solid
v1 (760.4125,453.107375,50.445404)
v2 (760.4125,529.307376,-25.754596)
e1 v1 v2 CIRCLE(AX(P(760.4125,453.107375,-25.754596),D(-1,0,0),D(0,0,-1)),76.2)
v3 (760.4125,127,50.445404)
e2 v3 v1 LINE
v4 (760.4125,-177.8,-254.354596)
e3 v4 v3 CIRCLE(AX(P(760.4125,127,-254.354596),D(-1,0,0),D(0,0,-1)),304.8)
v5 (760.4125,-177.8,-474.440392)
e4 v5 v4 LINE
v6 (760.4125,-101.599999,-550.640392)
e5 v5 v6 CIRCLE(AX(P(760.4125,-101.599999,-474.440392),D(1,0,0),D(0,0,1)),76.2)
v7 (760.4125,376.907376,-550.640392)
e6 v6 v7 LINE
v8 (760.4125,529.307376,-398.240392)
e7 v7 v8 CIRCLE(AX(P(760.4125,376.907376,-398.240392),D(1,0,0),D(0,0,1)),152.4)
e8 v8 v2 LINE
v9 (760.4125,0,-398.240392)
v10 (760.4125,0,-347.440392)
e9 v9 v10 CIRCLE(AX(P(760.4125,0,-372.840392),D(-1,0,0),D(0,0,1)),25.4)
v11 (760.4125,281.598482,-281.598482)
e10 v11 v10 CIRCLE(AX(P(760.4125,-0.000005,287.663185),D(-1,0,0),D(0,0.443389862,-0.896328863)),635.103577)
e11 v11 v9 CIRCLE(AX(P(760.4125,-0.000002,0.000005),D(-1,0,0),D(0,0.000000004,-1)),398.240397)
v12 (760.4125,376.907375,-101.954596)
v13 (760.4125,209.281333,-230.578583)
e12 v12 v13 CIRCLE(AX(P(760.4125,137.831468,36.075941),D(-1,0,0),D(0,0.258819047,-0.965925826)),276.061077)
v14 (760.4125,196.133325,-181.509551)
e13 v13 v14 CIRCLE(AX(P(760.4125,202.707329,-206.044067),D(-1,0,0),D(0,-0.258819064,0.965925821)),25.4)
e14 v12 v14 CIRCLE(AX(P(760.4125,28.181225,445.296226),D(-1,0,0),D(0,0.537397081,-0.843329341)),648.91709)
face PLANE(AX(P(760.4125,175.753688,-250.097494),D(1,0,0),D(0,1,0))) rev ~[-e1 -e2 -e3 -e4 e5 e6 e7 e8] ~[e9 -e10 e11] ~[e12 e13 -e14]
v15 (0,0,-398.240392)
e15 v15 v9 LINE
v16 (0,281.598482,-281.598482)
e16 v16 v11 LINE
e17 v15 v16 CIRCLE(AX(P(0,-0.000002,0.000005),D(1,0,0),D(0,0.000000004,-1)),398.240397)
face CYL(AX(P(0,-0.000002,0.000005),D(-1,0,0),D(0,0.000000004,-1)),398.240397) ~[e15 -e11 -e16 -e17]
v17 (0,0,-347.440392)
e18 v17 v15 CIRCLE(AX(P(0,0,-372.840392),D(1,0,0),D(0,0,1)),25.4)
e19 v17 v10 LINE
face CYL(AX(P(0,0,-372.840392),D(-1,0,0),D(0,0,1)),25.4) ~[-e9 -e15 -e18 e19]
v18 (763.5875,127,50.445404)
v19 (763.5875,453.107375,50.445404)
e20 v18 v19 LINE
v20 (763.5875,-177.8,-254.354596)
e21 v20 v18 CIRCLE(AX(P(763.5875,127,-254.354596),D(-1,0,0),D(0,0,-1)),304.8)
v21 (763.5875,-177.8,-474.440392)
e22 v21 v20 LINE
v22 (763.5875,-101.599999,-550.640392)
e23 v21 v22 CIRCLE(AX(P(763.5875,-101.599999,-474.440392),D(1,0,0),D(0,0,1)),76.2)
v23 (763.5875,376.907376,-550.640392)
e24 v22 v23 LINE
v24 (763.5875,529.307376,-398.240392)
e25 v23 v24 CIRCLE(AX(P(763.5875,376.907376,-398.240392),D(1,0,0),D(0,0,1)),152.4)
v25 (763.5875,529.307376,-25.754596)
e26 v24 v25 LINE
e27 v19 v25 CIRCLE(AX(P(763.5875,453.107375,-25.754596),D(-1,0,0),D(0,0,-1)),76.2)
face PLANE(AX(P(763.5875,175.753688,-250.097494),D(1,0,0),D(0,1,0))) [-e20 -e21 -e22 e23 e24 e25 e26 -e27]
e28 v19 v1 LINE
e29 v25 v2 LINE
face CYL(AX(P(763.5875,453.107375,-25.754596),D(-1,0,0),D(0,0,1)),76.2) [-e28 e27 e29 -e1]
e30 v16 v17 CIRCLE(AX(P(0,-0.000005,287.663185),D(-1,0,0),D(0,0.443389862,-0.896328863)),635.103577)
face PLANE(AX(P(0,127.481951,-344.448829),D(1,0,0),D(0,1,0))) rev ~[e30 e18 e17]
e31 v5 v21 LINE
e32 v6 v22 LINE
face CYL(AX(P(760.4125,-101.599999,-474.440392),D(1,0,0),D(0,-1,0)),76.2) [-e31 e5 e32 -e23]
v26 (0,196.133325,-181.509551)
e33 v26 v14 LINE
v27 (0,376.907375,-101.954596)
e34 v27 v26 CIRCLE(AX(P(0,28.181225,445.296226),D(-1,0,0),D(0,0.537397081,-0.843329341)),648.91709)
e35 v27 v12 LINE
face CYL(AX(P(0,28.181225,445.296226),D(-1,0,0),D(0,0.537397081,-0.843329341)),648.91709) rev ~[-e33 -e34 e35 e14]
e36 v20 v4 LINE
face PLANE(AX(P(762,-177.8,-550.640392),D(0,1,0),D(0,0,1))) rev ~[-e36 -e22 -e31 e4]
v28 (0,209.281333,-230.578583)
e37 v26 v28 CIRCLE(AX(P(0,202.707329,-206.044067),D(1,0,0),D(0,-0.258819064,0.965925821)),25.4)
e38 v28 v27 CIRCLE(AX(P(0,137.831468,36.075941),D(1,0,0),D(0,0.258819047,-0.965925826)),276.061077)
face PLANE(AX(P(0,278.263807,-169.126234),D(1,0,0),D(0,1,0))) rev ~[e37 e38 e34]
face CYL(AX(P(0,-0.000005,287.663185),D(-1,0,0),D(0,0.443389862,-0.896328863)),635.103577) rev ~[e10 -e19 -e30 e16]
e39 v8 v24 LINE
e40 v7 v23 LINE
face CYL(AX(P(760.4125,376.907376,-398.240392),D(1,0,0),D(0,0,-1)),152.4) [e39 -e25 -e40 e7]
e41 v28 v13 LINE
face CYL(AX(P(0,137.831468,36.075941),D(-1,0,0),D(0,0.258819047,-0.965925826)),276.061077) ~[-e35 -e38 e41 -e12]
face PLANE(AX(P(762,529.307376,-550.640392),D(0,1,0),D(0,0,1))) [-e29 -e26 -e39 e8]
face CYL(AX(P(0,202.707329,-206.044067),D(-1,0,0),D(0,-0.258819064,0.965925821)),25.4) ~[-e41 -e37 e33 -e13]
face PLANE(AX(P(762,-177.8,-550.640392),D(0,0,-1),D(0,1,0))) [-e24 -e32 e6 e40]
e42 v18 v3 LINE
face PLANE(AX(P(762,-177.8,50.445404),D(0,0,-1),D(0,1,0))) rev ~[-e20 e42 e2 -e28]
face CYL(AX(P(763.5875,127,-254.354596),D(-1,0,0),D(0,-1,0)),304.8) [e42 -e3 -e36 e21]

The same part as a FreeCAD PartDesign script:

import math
import FreeCAD as App
import Part
import Sketcher

V = App.Vector
Q = App.Units.Quantity


def edges_at(feature, points):
    """Names of the edges that pass closest to the given points."""
    edges = feature.Shape.Edges
    near = lambda p: min(range(len(edges)), key=lambda i: edges[i].distToShape(Part.Vertex(*p))[0])
    return sorted({f"Edge{near(p) + 1}" for p in points})

doc = App.newDocument("Part")
body = doc.addObject("PartDesign::Body", "Body")

sketch1 = body.newObject("Sketcher::SketchObject", "Sketch")
sketch1.AttachmentSupport = (doc.getObject("YZ_Plane"), [""])
sketch1.MapMode = "FlatFace"
sketch1.addGeometry([
    Part.ArcOfCircle(Part.Circle(V(0, -373, 0), V(0, 0, 1), 25), math.radians(90), math.radians(270)),
    Part.ArcOfCircle(Part.Circle(V(0, 0, 0), V(0, 0, 1), 398), math.radians(-90), math.radians(-45)),
    Part.ArcOfCircle(Part.Circle(V(0, 288, 0), V(0, 0, 1), 635), math.radians(-90), math.radians(-64)),
], False)
sketch1.addConstraint([
    Sketcher.Constraint("Tangent", 0, 2, 1, 1),
    Sketcher.Constraint("Coincident", 1, 2, 2, 2),
    Sketcher.Constraint("Tangent", 2, 1, 0, 1),
    Sketcher.Constraint("Coincident", 1, 3, -1, 1),
    Sketcher.Constraint("PointOnObject", 0, 3, -2),
    Sketcher.Constraint("Radius", 0, Q("1 in")),
    Sketcher.Constraint("Radius", 1, 398.240397),
    Sketcher.Constraint("Radius", 2, 635.103577),
    Sketcher.Constraint("DistanceX", -1, 1, 1, 2, 281.598482),
])
pad1 = body.newObject("PartDesign::Pad", "Pad")
pad1.Profile = sketch1
pad1.Length = Q("30 in")
body2 = doc.addObject("PartDesign::Body", "Body001")

sketch2 = body2.newObject("Sketcher::SketchObject", "Sketch001")
sketch2.AttachmentSupport = (doc.getObject("YZ_Plane001"), [""])
sketch2.MapMode = "FlatFace"
sketch2.addGeometry([
    Part.ArcOfCircle(Part.Circle(V(203, -206, 0), V(0, 0, 1), 25), math.radians(105), math.radians(285)),
    Part.ArcOfCircle(Part.Circle(V(138, 36, 0), V(0, 0, 1), 276), math.radians(-75), math.radians(-30)),
    Part.ArcOfCircle(Part.Circle(V(28, 445, 0), V(0, 0, 1), 649), math.radians(-75), math.radians(-57.49)),
], False)
sketch2.addConstraint([
    Sketcher.Constraint("Tangent", 0, 2, 1, 1),
    Sketcher.Constraint("Coincident", 1, 2, 2, 2),
    Sketcher.Constraint("Tangent", 2, 1, 0, 1),
    Sketcher.Constraint("Radius", 0, Q("1 in")),
    Sketcher.Constraint("Radius", 2, 648.91709),
    Sketcher.Constraint("Radius", 1, 276.061077),
    Sketcher.Constraint("DistanceX", 2, 3, 2, 1, 167.9521),
    Sketcher.Constraint("DistanceX", -1, 1, 0, 3, 202.707329),
    Sketcher.Constraint("DistanceX", -1, 1, 1, 3, 137.831468),
    Sketcher.Constraint("DistanceY", -1, 1, 1, 3, 36.075941),
])
pad2 = body2.newObject("PartDesign::Pad", "Pad001")
pad2.Profile = sketch2
pad2.Length = Q("30 in")
body.AllowCompound = True
doc.recompute()

boolean = body.newObject("PartDesign::Boolean", "Boolean")
boolean.Type = "Fuse"
boolean.addObjects([body2])

sketch3 = body.newObject("Sketcher::SketchObject", "Sketch002")
sketch3.AttachmentSupport = (doc.getObject("YZ_Plane"), [""])
sketch3.MapMode = "FlatFace"
sketch3.AttachmentOffset = App.Placement(V(0, 0, 30 * 25.4), App.Rotation())
sketch3.addGeometry([
    Part.LineSegment(V(-178, 50, 0), V(-178, -551, 0)),
    Part.LineSegment(V(-178, -551, 0), V(529, -551, 0)),
    Part.LineSegment(V(529, -551, 0), V(529, 50, 0)),
    Part.LineSegment(V(529, 50, 0), V(-178, 50, 0)),
], False)
sketch3.addConstraint([
    Sketcher.Constraint("Coincident", 0, 2, 1, 1),
    Sketcher.Constraint("Coincident", 1, 2, 2, 1),
    Sketcher.Constraint("Coincident", 2, 2, 3, 1),
    Sketcher.Constraint("Coincident", 3, 2, 0, 1),
    Sketcher.Constraint("Vertical", 0),
    Sketcher.Constraint("Horizontal", 1),
    Sketcher.Constraint("Vertical", 2),
    Sketcher.Constraint("Horizontal", 3),
    Sketcher.Constraint("DistanceX", 0, 2, -1, 1, Q("7 in")),
    Sketcher.Constraint("DistanceX", 1, 1, 1, 2, 707.107375),
    Sketcher.Constraint("DistanceY", 0, 2, 0, 1, 601.085796),
    Sketcher.Constraint("DistanceY", 0, 2, -1, 1, 550.640392),
])
pad3 = body.newObject("PartDesign::Pad", "Pad002")
pad3.Profile = sketch3
pad3.Length = Q("0.125 in")
pad3.Midplane = True
doc.recompute()

fillet = body.newObject("PartDesign::Fillet", "Fillet")
fillet.Base = (pad3, edges_at(pad3, [(762, -177.8, 50.445)]))
fillet.Radius = Q("12 in")
doc.recompute()

fillet2 = body.newObject("PartDesign::Fillet", "Fillet001")
fillet2.Base = (fillet, edges_at(fillet, [(762, -177.8, -550.64), (762, 529.307, 50.445)]))
fillet2.Radius = Q("3 in")
doc.recompute()

fillet3 = body.newObject("PartDesign::Fillet", "Fillet002")
fillet3.Base = (fillet2, edges_at(fillet2, [(762, 529.307, -550.64)]))
fillet3.Radius = Q("6 in")

doc.recompute()
